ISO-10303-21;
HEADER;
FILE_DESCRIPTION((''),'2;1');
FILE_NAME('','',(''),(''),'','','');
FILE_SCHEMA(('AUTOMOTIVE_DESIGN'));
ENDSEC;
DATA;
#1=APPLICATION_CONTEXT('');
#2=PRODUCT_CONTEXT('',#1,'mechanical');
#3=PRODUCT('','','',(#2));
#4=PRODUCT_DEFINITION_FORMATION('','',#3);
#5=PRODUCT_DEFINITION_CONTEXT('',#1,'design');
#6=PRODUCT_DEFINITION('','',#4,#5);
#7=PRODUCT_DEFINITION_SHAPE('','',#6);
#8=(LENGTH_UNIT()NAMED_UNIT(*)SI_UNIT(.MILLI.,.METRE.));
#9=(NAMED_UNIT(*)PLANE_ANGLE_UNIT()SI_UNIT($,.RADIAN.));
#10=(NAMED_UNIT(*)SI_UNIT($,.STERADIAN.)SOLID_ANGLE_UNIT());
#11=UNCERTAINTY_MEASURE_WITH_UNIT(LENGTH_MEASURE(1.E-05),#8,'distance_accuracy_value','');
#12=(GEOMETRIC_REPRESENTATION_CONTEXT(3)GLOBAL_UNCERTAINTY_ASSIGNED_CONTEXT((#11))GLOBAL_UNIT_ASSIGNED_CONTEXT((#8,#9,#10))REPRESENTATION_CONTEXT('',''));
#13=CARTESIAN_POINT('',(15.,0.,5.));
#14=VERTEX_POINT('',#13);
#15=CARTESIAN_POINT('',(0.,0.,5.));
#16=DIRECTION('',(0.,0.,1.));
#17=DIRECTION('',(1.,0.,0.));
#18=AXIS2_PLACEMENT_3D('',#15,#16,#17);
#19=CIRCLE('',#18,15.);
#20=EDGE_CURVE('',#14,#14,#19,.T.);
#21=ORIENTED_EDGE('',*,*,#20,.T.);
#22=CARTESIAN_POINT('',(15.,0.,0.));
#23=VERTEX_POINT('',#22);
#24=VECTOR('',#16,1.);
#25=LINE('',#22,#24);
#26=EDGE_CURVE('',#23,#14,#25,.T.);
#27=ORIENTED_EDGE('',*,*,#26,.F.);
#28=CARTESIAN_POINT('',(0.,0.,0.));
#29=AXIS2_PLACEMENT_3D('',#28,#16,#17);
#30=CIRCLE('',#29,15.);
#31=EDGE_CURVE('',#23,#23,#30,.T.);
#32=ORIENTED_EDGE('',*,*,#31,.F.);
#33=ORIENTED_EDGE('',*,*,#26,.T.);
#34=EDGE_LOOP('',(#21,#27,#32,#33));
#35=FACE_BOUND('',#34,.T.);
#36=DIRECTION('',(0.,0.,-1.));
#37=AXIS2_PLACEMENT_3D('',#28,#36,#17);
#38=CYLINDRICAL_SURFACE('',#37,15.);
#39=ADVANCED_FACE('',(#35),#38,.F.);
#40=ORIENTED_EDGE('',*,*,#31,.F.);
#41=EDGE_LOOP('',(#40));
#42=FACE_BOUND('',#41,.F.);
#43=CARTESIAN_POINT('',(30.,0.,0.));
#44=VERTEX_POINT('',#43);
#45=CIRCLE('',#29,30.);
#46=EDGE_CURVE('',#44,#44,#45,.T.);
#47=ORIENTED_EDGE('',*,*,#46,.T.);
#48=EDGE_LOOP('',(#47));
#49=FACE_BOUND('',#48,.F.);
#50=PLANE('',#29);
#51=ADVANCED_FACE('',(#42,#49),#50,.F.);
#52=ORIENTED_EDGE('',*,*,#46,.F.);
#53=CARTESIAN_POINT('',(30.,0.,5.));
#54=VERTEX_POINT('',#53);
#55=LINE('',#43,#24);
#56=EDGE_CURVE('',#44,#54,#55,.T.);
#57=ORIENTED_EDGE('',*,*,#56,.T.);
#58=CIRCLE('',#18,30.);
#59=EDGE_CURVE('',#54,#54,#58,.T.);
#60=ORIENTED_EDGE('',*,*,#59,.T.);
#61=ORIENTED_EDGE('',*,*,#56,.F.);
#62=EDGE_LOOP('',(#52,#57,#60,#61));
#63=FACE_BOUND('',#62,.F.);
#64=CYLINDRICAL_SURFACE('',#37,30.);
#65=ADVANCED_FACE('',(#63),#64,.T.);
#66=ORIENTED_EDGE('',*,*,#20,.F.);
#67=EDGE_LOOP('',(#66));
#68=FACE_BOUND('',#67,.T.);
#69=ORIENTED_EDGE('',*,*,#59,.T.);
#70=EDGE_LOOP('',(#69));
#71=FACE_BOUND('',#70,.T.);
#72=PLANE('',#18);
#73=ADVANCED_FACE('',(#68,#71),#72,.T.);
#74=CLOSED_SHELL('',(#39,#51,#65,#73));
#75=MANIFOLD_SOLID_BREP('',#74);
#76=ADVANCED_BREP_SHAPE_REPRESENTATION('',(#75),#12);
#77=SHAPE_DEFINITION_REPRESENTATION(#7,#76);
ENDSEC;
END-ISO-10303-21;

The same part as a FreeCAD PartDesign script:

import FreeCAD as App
import Part
import Sketcher
Q = App.Units.Quantity

doc = App.newDocument("Part")
params = doc.addObject("Spreadsheet::Sheet", "Params")
for row, (alias, value) in enumerate([
    ("sketch1_diameter", "60 mm"),
    ("sketch1_diameter2", "30 mm"),
    ("pad1_length", "5 mm"),
], start=1):
    params.set(f"A{row}", alias)
    params.set(f"B{row}", "=" + value)
    params.setAlias(f"B{row}", alias)

body = doc.addObject("PartDesign::Body", "Body")

# Sketch on XY plane
sketch1 = doc.addObject("Sketcher::SketchObject", "Sketch")
body.addObject(sketch1)
sketch1.AttachmentSupport = (doc.XY_Plane, [""])
sketch1.MapMode = "FlatFace"
sketch1.addGeometry([
    Part.Circle(App.Vector(0, 0, 0), App.Vector(0, 0, 1), 30),
    Part.Circle(App.Vector(0, 0, 0), App.Vector(0, 0, 1), 15),
], False)
sketch1.addConstraint([
    Sketcher.Constraint("Coincident", 0, 3, -1, 1),
    Sketcher.Constraint("Coincident", 1, 3, -1, 1),
    Sketcher.Constraint("Diameter", 0, Q("60 mm")),
    Sketcher.Constraint("Diameter", 1, Q("30 mm")),
])
sketch1.setExpression("Constraints[2]", "Params.sketch1_diameter")
sketch1.setExpression("Constraints[3]", "Params.sketch1_diameter2")
pad1 = doc.addObject("PartDesign::Pad", "Pad")
body.addObject(pad1)
pad1.Profile = sketch1
pad1.setExpression("Length", "Params.pad1_length")

doc.recompute()
